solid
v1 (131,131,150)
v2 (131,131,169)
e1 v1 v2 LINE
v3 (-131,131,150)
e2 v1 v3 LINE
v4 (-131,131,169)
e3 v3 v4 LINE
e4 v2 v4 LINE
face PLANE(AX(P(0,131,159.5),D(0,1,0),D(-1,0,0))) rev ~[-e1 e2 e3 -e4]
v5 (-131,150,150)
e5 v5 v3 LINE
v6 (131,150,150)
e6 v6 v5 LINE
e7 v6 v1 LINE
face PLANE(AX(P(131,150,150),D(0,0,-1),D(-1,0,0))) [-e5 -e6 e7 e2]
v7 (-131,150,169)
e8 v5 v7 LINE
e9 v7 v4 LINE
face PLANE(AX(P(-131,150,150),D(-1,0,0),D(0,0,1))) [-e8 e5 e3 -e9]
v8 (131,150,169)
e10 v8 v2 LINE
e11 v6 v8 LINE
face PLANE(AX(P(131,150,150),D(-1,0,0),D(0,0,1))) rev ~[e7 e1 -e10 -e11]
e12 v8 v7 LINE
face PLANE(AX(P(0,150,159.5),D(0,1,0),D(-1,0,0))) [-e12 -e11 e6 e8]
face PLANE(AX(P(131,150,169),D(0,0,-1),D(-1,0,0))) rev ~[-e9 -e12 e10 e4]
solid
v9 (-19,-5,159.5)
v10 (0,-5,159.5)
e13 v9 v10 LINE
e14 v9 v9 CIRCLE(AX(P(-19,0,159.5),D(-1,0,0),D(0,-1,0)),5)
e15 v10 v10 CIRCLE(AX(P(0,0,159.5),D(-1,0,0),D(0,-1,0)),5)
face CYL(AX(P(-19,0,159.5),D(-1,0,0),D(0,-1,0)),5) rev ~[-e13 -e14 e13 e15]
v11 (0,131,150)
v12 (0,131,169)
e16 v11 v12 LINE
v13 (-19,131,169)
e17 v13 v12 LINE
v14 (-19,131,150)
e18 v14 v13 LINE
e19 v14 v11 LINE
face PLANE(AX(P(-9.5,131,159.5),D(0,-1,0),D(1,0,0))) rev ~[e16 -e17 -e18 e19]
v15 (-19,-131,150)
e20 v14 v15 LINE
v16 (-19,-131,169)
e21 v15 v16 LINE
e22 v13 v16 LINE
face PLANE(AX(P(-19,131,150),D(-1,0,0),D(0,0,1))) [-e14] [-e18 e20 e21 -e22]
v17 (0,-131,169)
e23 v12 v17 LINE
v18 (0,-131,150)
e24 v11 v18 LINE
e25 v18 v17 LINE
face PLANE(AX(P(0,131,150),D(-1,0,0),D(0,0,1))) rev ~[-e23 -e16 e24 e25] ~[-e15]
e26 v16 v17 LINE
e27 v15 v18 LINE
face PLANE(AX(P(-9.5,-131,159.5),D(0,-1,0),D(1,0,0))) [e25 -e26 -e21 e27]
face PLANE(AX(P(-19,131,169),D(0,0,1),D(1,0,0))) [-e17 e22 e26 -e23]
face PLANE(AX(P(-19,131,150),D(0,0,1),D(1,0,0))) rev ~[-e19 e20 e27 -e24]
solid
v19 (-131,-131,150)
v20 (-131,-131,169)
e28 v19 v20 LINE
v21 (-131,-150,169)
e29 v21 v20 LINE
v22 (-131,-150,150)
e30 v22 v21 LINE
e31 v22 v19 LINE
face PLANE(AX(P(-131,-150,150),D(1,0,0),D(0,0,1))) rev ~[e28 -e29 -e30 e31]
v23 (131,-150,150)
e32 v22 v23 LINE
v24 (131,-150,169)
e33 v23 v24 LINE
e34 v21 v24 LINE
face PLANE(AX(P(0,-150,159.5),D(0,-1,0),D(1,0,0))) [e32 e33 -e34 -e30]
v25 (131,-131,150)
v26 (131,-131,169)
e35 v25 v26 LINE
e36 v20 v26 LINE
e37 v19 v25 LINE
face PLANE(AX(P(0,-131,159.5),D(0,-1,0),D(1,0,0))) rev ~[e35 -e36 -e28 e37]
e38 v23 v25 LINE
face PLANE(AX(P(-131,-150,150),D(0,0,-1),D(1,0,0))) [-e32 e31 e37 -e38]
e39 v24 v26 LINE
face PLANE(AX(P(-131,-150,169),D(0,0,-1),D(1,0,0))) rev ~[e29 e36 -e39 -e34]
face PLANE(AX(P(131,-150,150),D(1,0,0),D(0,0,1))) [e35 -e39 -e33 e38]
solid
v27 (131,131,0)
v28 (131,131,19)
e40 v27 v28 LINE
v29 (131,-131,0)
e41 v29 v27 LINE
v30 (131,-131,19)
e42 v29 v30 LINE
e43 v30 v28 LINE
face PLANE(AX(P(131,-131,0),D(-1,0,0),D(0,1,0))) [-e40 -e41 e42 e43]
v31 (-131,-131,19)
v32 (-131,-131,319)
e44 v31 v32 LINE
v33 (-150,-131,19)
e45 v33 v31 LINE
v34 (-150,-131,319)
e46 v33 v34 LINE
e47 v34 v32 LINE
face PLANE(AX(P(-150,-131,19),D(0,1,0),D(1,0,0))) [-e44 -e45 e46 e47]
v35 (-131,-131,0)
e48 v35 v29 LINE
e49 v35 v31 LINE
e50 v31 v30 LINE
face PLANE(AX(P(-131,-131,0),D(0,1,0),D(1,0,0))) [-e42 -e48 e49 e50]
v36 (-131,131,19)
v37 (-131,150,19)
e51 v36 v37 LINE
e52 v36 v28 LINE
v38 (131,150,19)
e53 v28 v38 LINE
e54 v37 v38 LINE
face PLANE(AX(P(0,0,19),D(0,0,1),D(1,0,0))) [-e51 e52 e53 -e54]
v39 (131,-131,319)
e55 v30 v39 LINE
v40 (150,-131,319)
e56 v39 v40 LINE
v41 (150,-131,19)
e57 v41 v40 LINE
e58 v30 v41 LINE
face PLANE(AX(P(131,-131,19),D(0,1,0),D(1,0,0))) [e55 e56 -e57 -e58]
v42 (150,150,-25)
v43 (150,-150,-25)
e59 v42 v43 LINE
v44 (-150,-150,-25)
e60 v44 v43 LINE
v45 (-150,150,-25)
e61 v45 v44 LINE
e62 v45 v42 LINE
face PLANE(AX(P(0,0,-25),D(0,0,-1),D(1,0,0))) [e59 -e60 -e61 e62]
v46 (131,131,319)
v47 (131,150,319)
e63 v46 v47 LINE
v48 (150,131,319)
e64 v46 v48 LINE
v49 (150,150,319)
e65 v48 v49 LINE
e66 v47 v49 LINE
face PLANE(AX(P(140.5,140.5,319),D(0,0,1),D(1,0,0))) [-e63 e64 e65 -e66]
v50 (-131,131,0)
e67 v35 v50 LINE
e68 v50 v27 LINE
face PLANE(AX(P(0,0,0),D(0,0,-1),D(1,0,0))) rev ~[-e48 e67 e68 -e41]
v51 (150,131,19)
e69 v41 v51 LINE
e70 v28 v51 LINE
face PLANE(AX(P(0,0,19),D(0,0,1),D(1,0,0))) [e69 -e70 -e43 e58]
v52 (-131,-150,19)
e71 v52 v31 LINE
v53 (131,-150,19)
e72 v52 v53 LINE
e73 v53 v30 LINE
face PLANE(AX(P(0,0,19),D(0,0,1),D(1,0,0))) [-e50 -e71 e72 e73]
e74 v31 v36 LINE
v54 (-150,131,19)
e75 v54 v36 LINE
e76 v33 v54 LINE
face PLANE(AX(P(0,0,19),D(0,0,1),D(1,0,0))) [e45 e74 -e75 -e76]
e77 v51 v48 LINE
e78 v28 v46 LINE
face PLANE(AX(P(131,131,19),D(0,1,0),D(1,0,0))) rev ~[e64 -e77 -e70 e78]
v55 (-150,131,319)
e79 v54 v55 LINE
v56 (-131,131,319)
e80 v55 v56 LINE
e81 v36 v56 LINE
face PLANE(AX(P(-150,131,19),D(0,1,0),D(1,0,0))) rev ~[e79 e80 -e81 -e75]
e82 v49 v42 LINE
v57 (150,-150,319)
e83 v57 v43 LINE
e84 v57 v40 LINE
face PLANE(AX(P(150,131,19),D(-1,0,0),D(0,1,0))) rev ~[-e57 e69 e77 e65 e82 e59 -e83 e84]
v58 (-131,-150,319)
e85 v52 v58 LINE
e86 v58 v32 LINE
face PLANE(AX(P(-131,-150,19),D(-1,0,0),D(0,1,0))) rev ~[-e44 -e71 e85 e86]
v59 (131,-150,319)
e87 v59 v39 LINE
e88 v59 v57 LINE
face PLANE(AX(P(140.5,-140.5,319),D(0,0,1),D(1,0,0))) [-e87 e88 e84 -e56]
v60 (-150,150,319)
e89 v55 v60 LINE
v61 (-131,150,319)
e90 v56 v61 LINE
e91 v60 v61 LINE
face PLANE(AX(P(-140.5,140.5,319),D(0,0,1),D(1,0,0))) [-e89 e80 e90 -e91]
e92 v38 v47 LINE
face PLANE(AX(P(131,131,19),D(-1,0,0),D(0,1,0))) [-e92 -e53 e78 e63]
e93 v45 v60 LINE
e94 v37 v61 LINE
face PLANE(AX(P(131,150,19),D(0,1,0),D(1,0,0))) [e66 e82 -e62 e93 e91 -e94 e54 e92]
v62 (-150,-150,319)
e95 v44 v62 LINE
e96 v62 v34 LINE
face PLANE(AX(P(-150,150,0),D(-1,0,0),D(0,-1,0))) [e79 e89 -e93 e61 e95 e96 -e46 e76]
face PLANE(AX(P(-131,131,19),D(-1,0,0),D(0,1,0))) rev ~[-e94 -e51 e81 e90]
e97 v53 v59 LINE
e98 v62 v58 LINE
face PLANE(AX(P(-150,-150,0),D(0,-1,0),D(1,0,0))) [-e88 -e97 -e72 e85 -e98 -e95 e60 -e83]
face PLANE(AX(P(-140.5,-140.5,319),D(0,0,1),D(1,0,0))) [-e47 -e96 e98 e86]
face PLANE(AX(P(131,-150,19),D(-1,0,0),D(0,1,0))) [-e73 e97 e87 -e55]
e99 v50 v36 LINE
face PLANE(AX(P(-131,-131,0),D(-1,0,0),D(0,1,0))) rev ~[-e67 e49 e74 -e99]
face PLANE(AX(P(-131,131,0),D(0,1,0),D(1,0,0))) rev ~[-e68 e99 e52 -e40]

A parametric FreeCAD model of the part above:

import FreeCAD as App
import Part
import Sketcher

V = App.Vector

doc = App.newDocument("Part")
body = doc.addObject("PartDesign::Body", "Body")

sketch1 = doc.addObject("Sketcher::SketchObject", "Sketch")
body.addObject(sketch1)
sketch1.AttachmentSupport = (doc.XY_Plane, [""])
sketch1.MapMode = "FlatFace"
sketch1.addGeometry([
    Part.LineSegment(V(-150, 150, 0), V(-150, -150, 0)),
    Part.LineSegment(V(-150, -150, 0), V(150, -150, 0)),
    Part.LineSegment(V(150, -150, 0), V(150, 150, 0)),
    Part.LineSegment(V(150, 150, 0), V(-150, 150, 0)),
    Part.LineSegment(V(131, -131, 0), V(-131, -131, 0)),
    Part.LineSegment(V(-131, -131, 0), V(-131, 131, 0)),
    Part.LineSegment(V(-131, 131, 0), V(131, 131, 0)),
    Part.LineSegment(V(131, 131, 0), V(131, -131, 0)),
], False)
sketch1.addConstraint([
    Sketcher.Constraint("Coincident", 0, 2, 1, 1),
    Sketcher.Constraint("Coincident", 1, 2, 2, 1),
    Sketcher.Constraint("Coincident", 2, 2, 3, 1),
    Sketcher.Constraint("Coincident", 3, 2, 0, 1),
    Sketcher.Constraint("Coincident", 4, 2, 5, 1),
    Sketcher.Constraint("Coincident", 5, 2, 6, 1),
    Sketcher.Constraint("Coincident", 6, 2, 7, 1),
    Sketcher.Constraint("Coincident", 7, 2, 4, 1),
    Sketcher.Constraint("Vertical", 0),
    Sketcher.Constraint("Horizontal", 1),
    Sketcher.Constraint("Vertical", 2),
    Sketcher.Constraint("Horizontal", 3),
    Sketcher.Constraint("Horizontal", 4),
    Sketcher.Constraint("Vertical", 5),
    Sketcher.Constraint("Horizontal", 6),
    Sketcher.Constraint("Vertical", 7),
    Sketcher.Constraint("Symmetric", 0, 2, 2, 2, -1, 1),
    Sketcher.Constraint("Symmetric", 4, 2, 6, 2, -1, 1),
    Sketcher.Constraint("Equal", 3, 0),
    Sketcher.Constraint("Equal", 6, 5),
    Sketcher.Constraint("DistanceX", 1, 1, 1, 2, 300.0),
    Sketcher.Constraint("DistanceX", 4, 2, 4, 1, 262.0),
])
pad1 = doc.addObject("PartDesign::Pad", "Pad")
body.addObject(pad1)
pad1.Profile = sketch1
pad1.Length = 19

sketch2 = doc.addObject("Sketcher::SketchObject", "Sketch001")
body.addObject(sketch2)
sketch2.AttachmentSupport = (doc.XY_Plane, [""])
sketch2.MapMode = "FlatFace"
sketch2.addGeometry([
    Part.LineSegment(V(-150, -150, 0), V(-150, 150, 0)),
    Part.LineSegment(V(-150, 150, 0), V(150, 150, 0)),
    Part.LineSegment(V(150, 150, 0), V(150, -150, 0)),
    Part.LineSegment(V(150, -150, 0), V(-150, -150, 0)),
], False)
sketch2.addConstraint([
    Sketcher.Constraint("Coincident", 0, 2, 1, 1),
    Sketcher.Constraint("Coincident", 1, 2, 2, 1),
    Sketcher.Constraint("Coincident", 2, 2, 3, 1),
    Sketcher.Constraint("Coincident", 3, 2, 0, 1),
    Sketcher.Constraint("Vertical", 0),
    Sketcher.Constraint("Horizontal", 1),
    Sketcher.Constraint("Vertical", 2),
    Sketcher.Constraint("Horizontal", 3),
    Sketcher.Constraint("Symmetric", 0, 2, 2, 2, -1, 1),
    Sketcher.Constraint("Equal", 3, 0),
    Sketcher.Constraint("DistanceX", 1, 1, 1, 2, 300.0),
])
pad2 = doc.addObject("PartDesign::Pad", "Pad001")
body.addObject(pad2)
pad2.Profile = sketch2
pad2.Length = 25
pad2.Reversed = True

sketch3 = doc.addObject("Sketcher::SketchObject", "Sketch002")
body.addObject(sketch3)
sketch3.AttachmentSupport = (doc.XY_Plane, [""])
sketch3.MapMode = "FlatFace"
sketch3.AttachmentOffset = App.Placement(V(0, 0, 19), App.Rotation())
sketch3.addGeometry([
    Part.LineSegment(V(131, 150, 0), V(131, 131, 0)),
    Part.LineSegment(V(131, 131, 0), V(150, 131, 0)),
    Part.LineSegment(V(150, 131, 0), V(150, 150, 0)),
    Part.LineSegment(V(150, 150, 0), V(131, 150, 0)),
    Part.LineSegment(V(-150, 150, 0), V(-150, 131, 0)),
    Part.LineSegment(V(-150, 131, 0), V(-131, 131, 0)),
    Part.LineSegment(V(-131, 131, 0), V(-131, 150, 0)),
    Part.LineSegment(V(-131, 150, 0), V(-150, 150, 0)),
    Part.LineSegment(V(131, -131, 0), V(131, -150, 0)),
    Part.LineSegment(V(131, -150, 0), V(150, -150, 0)),
    Part.LineSegment(V(150, -150, 0), V(150, -131, 0)),
    Part.LineSegment(V(150, -131, 0), V(131, -131, 0)),
    Part.LineSegment(V(-150, -131, 0), V(-150, -150, 0)),
    Part.LineSegment(V(-150, -150, 0), V(-131, -150, 0)),
    Part.LineSegment(V(-131, -150, 0), V(-131, -131, 0)),
    Part.LineSegment(V(-131, -131, 0), V(-150, -131, 0)),
], False)
sketch3.addConstraint([
    Sketcher.Constraint("Coincident", 0, 2, 1, 1),
    Sketcher.Constraint("Coincident", 1, 2, 2, 1),
    Sketcher.Constraint("Coincident", 2, 2, 3, 1),
    Sketcher.Constraint("Coincident", 3, 2, 0, 1),
    Sketcher.Constraint("Coincident", 4, 2, 5, 1),
    Sketcher.Constraint("Coincident", 5, 2, 6, 1),
    Sketcher.Constraint("Coincident", 6, 2, 7, 1),
    Sketcher.Constraint("Coincident", 7, 2, 4, 1),
    Sketcher.Constraint("Coincident", 8, 2, 9, 1),
    Sketcher.Constraint("Coincident", 9, 2, 10, 1),
    Sketcher.Constraint("Coincident", 10, 2, 11, 1),
    Sketcher.Constraint("Coincident", 11, 2, 8, 1),
    Sketcher.Constraint("Coincident", 12, 2, 13, 1),
    Sketcher.Constraint("Coincident", 13, 2, 14, 1),
    Sketcher.Constraint("Coincident", 14, 2, 15, 1),
    Sketcher.Constraint("Coincident", 15, 2, 12, 1),
    Sketcher.Constraint("Vertical", 0),
    Sketcher.Constraint("Horizontal", 1),
    Sketcher.Constraint("Vertical", 2),
    Sketcher.Constraint("Horizontal", 3),
    Sketcher.Constraint("Vertical", 4),
    Sketcher.Constraint("Horizontal", 5),
    Sketcher.Constraint("Vertical", 6),
    Sketcher.Constraint("Horizontal", 7),
    Sketcher.Constraint("Vertical", 8),
    Sketcher.Constraint("Horizontal", 9),
    Sketcher.Constraint("Vertical", 10),
    Sketcher.Constraint("Horizontal", 11),
    Sketcher.Constraint("Vertical", 12),
    Sketcher.Constraint("Horizontal", 13),
    Sketcher.Constraint("Vertical", 14),
    Sketcher.Constraint("Horizontal", 15),
    Sketcher.Constraint("Symmetric", 6, 2, 8, 2, -1, 1),
    Sketcher.Constraint("Symmetric", 4, 2, 10, 2, -1, 1),
    Sketcher.Constraint("Symmetric", 2, 2, 12, 2, -1, 1),
    Sketcher.Constraint("Symmetric", 0, 2, 14, 2, -1, 1),
    Sketcher.Constraint("Symmetric", 1, 2, 4, 2, -2),
    Sketcher.Constraint("Symmetric", 3, 2, 6, 2, -2),
    Sketcher.Constraint("Equal", 15, 0),
    Sketcher.Constraint("DistanceX", 1, 1, 1, 2, 19.0),
    Sketcher.Constraint("DistanceX", -1, 1, 0, 2, 131.0),
    Sketcher.Constraint("DistanceY", -1, 1, 0, 2, 131.0),
])
pad3 = doc.addObject("PartDesign::Pad", "Pad002")
body.addObject(pad3)
pad3.Profile = sketch3
pad3.Length = 300
body2 = doc.addObject("PartDesign::Body", "Body001")

sketch4 = doc.addObject("Sketcher::SketchObject", "Sketch003")
body2.addObject(sketch4)
sketch4.AttachmentSupport = (doc.getObject("XZ_Plane001"), [""])
sketch4.MapMode = "FlatFace"
sketch4.AttachmentOffset = App.Placement(V(0, 0, 150), App.Rotation())
sketch4.addGeometry([
    Part.LineSegment(V(-131, 169, 0), V(-131, 150, 0)),
    Part.LineSegment(V(-131, 150, 0), V(131, 150, 0)),
    Part.LineSegment(V(131, 150, 0), V(131, 169, 0)),
    Part.LineSegment(V(131, 169, 0), V(-131, 169, 0)),
], False)
sketch4.addConstraint([
    Sketcher.Constraint("Coincident", 0, 2, 1, 1),
    Sketcher.Constraint("Coincident", 1, 2, 2, 1),
    Sketcher.Constraint("Coincident", 2, 2, 3, 1),
    Sketcher.Constraint("Coincident", 3, 2, 0, 1),
    Sketcher.Constraint("Vertical", 0),
    Sketcher.Constraint("Horizontal", 1),
    Sketcher.Constraint("Vertical", 2),
    Sketcher.Constraint("Horizontal", 3),
    Sketcher.Constraint("DistanceX", 1, 1, 1, 2, 262.0),
    Sketcher.Constraint("DistanceY", 0, 2, 0, 1, 19.0),
    Sketcher.Constraint("DistanceX", 0, 2, -1, 1, 131.0),
    Sketcher.Constraint("DistanceY", -1, 1, 0, 2, 150.0),
])
pad4 = doc.addObject("PartDesign::Pad", "Pad003")
body2.addObject(pad4)
pad4.Profile = sketch4
pad4.Length = 19
pad4.Reversed = True
body3 = doc.addObject("PartDesign::Body", "Body002")

sketch5 = doc.addObject("Sketcher::SketchObject", "Sketch004")
body3.addObject(sketch5)
sketch5.AttachmentSupport = (doc.getObject("XZ_Plane002"), [""])
sketch5.MapMode = "FlatFace"
sketch5.AttachmentOffset = App.Placement(V(0, 0, -150), App.Rotation())
sketch5.addGeometry([
    Part.LineSegment(V(131, 169, 0), V(131, 150, 0)),
    Part.LineSegment(V(131, 150, 0), V(-131, 150, 0)),
    Part.LineSegment(V(-131, 150, 0), V(-131, 169, 0)),
    Part.LineSegment(V(-131, 169, 0), V(131, 169, 0)),
], False)
sketch5.addConstraint([
    Sketcher.Constraint("Coincident", 0, 2, 1, 1),
    Sketcher.Constraint("Coincident", 1, 2, 2, 1),
    Sketcher.Constraint("Coincident", 2, 2, 3, 1),
    Sketcher.Constraint("Coincident", 3, 2, 0, 1),
    Sketcher.Constraint("Vertical", 0),
    Sketcher.Constraint("Horizontal", 1),
    Sketcher.Constraint("Vertical", 2),
    Sketcher.Constraint("Horizontal", 3),
    Sketcher.Constraint("DistanceX", 1, 2, 1, 1, 262.0),
    Sketcher.Constraint("DistanceY", 0, 2, 0, 1, 19.0),
    Sketcher.Constraint("DistanceX", -1, 1, 0, 2, 131.0),
    Sketcher.Constraint("DistanceY", -1, 1, 0, 2, 150.0),
])
pad5 = doc.addObject("PartDesign::Pad", "Pad004")
body3.addObject(pad5)
pad5.Profile = sketch5
pad5.Length = 19
body4 = doc.addObject("PartDesign::Body", "Body003")

sketch6 = doc.addObject("Sketcher::SketchObject", "Sketch005")
body4.addObject(sketch6)
sketch6.AttachmentSupport = (doc.getObject("XZ_Plane003"), [""])
sketch6.MapMode = "FlatFace"
sketch6.AttachmentOffset = App.Placement(V(0, 0, -131), App.Rotation())
sketch6.addGeometry([
    Part.LineSegment(V(-19, 169, 0), V(-19, 150, 0)),
    Part.LineSegment(V(-19, 150, 0), V(0, 150, 0)),
    Part.LineSegment(V(0, 150, 0), V(0, 169, 0)),
    Part.LineSegment(V(0, 169, 0), V(-19, 169, 0)),
], False)
sketch6.addConstraint([
    Sketcher.Constraint("Coincident", 0, 2, 1, 1),
    Sketcher.Constraint("Coincident", 1, 2, 2, 1),
    Sketcher.Constraint("Coincident", 2, 2, 3, 1),
    Sketcher.Constraint("Coincident", 3, 2, 0, 1),
    Sketcher.Constraint("Vertical", 0),
    Sketcher.Constraint("Horizontal", 1),
    Sketcher.Constraint("Vertical", 2),
    Sketcher.Constraint("Horizontal", 3),
    Sketcher.Constraint("PointOnObject", 1, 2, -2),
    Sketcher.Constraint("Equal", 3, 0),
    Sketcher.Constraint("DistanceX", 1, 1, 1, 2, 19.0),
    Sketcher.Constraint("DistanceY", -1, 1, 0, 2, 150.0),
])
pad6 = doc.addObject("PartDesign::Pad", "Pad005")
body4.addObject(pad6)
pad6.Profile = sketch6
pad6.Length = 262

sketch7 = doc.addObject("Sketcher::SketchObject", "Sketch006")
body4.addObject(sketch7)
sketch7.AttachmentSupport = (doc.getObject("YZ_Plane003"), [""])
sketch7.MapMode = "FlatFace"
sketch7.AttachmentOffset = App.Placement(V(0, 0, -19), App.Rotation())
sketch7.addGeometry(Part.Circle(V(0, 160, 0), V(0, 0, 1), 5), False)
sketch7.addConstraint([
    Sketcher.Constraint("PointOnObject", 0, 3, -2),
    Sketcher.Constraint("Diameter", 0, 10.0),
    Sketcher.Constraint("DistanceY", -1, 1, 0, 3, 159.5),
])
pocket1 = doc.addObject("PartDesign::Pocket", "Pocket")
body4.addObject(pocket1)
pocket1.Profile = sketch7
pocket1.Length = 25
pocket1.Reversed = True

doc.recompute()
